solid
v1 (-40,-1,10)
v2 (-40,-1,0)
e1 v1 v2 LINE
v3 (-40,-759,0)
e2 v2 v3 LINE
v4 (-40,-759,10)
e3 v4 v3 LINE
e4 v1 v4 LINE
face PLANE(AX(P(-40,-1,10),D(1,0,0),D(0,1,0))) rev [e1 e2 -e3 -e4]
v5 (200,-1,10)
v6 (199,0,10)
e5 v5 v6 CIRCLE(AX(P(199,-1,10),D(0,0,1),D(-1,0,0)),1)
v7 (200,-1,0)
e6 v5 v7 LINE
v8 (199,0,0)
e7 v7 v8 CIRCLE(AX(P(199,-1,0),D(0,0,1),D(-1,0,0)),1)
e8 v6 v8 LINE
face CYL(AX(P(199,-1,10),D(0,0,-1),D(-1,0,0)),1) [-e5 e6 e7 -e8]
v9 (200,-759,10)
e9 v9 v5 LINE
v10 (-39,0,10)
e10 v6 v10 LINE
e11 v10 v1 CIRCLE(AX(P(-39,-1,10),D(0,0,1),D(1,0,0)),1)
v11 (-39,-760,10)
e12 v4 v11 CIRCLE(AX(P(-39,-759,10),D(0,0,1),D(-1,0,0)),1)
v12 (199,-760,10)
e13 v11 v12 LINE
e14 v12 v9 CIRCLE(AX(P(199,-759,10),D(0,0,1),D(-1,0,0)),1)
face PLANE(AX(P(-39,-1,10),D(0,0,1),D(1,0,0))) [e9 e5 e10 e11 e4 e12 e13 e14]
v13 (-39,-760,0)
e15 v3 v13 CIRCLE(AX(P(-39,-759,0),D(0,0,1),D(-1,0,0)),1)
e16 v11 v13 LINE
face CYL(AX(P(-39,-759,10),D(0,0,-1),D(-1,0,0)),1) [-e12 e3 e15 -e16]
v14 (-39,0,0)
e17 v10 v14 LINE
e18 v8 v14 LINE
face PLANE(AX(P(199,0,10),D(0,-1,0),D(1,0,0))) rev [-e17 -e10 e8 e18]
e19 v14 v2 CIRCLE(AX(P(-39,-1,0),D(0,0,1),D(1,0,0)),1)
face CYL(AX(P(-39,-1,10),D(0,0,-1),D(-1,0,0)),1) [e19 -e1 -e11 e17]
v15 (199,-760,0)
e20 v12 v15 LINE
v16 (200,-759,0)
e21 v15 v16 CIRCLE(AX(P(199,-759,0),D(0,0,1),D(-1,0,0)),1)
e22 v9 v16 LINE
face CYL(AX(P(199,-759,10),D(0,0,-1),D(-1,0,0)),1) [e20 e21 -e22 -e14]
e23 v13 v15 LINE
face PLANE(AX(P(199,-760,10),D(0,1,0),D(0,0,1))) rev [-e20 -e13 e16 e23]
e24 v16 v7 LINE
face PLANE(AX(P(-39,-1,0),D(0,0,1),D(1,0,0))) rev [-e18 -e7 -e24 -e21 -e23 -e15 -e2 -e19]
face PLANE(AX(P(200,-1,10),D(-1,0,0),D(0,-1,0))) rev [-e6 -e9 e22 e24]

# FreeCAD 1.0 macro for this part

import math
import FreeCAD as App
import Part
import Sketcher
Q = App.Units.Quantity

doc = App.newDocument("Part")
body = doc.addObject("PartDesign::Body", "Body")

# Sketch on XY plane
sketch1 = body.newObject("Sketcher::SketchObject", "Sketch")
sketch1.AttachmentSupport = (doc.getObject("XY_Plane"), [""])
sketch1.MapMode = "FlatFace"
sketch1.addGeometry(Part.LineSegment(App.Vector(199, 0, 0), App.Vector(-39, 0, 0)), False)
sketch1.addGeometry(Part.ArcOfCircle(Part.Circle(App.Vector(-39, -1, 0), App.Vector(0, 0, 1), 1), math.radians(90), math.radians(180)), False)
sketch1.addGeometry(Part.LineSegment(App.Vector(-40, -1, 0), App.Vector(-40, -759, 0)), False)
sketch1.addGeometry(Part.ArcOfCircle(Part.Circle(App.Vector(-39, -759, 0), App.Vector(0, 0, 1), 1), math.radians(-180), math.radians(-90)), False)
sketch1.addGeometry(Part.LineSegment(App.Vector(-39, -760, 0), App.Vector(199, -760, 0)), False)
sketch1.addGeometry(Part.ArcOfCircle(Part.Circle(App.Vector(199, -759, 0), App.Vector(0, 0, 1), 1), math.radians(-90), math.radians(0)), False)
sketch1.addGeometry(Part.LineSegment(App.Vector(200, -759, 0), App.Vector(200, -1, 0)), False)
sketch1.addGeometry(Part.ArcOfCircle(Part.Circle(App.Vector(199, -1, 0), App.Vector(0, 0, 1), 1), math.radians(0), math.radians(90)), False)
sketch1.addConstraint(Sketcher.Constraint("Tangent", 0, 2, 1, 1))
sketch1.addConstraint(Sketcher.Constraint("Tangent", 1, 2, 2, 1))
sketch1.addConstraint(Sketcher.Constraint("Tangent", 2, 2, 3, 1))
sketch1.addConstraint(Sketcher.Constraint("Tangent", 3, 2, 4, 1))
sketch1.addConstraint(Sketcher.Constraint("Tangent", 4, 2, 5, 1))
sketch1.addConstraint(Sketcher.Constraint("Tangent", 5, 2, 6, 1))
sketch1.addConstraint(Sketcher.Constraint("Tangent", 6, 2, 7, 1))
sketch1.addConstraint(Sketcher.Constraint("Tangent", 7, 2, 0, 1))
sketch1.addConstraint(Sketcher.Constraint("Horizontal", 0))
sketch1.addConstraint(Sketcher.Constraint("Vertical", 2))
sketch1.addConstraint(Sketcher.Constraint("Horizontal", 4))
sketch1.addConstraint(Sketcher.Constraint("Vertical", 6))
sketch1.addConstraint(Sketcher.Constraint("Equal", 1, 3))
sketch1.addConstraint(Sketcher.Constraint("Equal", 3, 5))
sketch1.addConstraint(Sketcher.Constraint("Equal", 5, 7))
sketch1.addConstraint(Sketcher.Constraint("PointOnObject", 0, 2, -1))
sketch1.addConstraint(Sketcher.Constraint("Radius", 1, Q("1 mm")))
sketch1.addConstraint(Sketcher.Constraint("DistanceX", 0, 2, 0, 1, Q("238 mm")))
sketch1.addConstraint(Sketcher.Constraint("DistanceY", 2, 2, 2, 1, Q("758 mm")))
sketch1.addConstraint(Sketcher.Constraint("DistanceX", 1, 3, -1, 1, Q("39 mm")))
pad1 = body.newObject("PartDesign::Pad", "Pad")
pad1.Profile = sketch1
pad1.Length = 10

doc.recompute()
